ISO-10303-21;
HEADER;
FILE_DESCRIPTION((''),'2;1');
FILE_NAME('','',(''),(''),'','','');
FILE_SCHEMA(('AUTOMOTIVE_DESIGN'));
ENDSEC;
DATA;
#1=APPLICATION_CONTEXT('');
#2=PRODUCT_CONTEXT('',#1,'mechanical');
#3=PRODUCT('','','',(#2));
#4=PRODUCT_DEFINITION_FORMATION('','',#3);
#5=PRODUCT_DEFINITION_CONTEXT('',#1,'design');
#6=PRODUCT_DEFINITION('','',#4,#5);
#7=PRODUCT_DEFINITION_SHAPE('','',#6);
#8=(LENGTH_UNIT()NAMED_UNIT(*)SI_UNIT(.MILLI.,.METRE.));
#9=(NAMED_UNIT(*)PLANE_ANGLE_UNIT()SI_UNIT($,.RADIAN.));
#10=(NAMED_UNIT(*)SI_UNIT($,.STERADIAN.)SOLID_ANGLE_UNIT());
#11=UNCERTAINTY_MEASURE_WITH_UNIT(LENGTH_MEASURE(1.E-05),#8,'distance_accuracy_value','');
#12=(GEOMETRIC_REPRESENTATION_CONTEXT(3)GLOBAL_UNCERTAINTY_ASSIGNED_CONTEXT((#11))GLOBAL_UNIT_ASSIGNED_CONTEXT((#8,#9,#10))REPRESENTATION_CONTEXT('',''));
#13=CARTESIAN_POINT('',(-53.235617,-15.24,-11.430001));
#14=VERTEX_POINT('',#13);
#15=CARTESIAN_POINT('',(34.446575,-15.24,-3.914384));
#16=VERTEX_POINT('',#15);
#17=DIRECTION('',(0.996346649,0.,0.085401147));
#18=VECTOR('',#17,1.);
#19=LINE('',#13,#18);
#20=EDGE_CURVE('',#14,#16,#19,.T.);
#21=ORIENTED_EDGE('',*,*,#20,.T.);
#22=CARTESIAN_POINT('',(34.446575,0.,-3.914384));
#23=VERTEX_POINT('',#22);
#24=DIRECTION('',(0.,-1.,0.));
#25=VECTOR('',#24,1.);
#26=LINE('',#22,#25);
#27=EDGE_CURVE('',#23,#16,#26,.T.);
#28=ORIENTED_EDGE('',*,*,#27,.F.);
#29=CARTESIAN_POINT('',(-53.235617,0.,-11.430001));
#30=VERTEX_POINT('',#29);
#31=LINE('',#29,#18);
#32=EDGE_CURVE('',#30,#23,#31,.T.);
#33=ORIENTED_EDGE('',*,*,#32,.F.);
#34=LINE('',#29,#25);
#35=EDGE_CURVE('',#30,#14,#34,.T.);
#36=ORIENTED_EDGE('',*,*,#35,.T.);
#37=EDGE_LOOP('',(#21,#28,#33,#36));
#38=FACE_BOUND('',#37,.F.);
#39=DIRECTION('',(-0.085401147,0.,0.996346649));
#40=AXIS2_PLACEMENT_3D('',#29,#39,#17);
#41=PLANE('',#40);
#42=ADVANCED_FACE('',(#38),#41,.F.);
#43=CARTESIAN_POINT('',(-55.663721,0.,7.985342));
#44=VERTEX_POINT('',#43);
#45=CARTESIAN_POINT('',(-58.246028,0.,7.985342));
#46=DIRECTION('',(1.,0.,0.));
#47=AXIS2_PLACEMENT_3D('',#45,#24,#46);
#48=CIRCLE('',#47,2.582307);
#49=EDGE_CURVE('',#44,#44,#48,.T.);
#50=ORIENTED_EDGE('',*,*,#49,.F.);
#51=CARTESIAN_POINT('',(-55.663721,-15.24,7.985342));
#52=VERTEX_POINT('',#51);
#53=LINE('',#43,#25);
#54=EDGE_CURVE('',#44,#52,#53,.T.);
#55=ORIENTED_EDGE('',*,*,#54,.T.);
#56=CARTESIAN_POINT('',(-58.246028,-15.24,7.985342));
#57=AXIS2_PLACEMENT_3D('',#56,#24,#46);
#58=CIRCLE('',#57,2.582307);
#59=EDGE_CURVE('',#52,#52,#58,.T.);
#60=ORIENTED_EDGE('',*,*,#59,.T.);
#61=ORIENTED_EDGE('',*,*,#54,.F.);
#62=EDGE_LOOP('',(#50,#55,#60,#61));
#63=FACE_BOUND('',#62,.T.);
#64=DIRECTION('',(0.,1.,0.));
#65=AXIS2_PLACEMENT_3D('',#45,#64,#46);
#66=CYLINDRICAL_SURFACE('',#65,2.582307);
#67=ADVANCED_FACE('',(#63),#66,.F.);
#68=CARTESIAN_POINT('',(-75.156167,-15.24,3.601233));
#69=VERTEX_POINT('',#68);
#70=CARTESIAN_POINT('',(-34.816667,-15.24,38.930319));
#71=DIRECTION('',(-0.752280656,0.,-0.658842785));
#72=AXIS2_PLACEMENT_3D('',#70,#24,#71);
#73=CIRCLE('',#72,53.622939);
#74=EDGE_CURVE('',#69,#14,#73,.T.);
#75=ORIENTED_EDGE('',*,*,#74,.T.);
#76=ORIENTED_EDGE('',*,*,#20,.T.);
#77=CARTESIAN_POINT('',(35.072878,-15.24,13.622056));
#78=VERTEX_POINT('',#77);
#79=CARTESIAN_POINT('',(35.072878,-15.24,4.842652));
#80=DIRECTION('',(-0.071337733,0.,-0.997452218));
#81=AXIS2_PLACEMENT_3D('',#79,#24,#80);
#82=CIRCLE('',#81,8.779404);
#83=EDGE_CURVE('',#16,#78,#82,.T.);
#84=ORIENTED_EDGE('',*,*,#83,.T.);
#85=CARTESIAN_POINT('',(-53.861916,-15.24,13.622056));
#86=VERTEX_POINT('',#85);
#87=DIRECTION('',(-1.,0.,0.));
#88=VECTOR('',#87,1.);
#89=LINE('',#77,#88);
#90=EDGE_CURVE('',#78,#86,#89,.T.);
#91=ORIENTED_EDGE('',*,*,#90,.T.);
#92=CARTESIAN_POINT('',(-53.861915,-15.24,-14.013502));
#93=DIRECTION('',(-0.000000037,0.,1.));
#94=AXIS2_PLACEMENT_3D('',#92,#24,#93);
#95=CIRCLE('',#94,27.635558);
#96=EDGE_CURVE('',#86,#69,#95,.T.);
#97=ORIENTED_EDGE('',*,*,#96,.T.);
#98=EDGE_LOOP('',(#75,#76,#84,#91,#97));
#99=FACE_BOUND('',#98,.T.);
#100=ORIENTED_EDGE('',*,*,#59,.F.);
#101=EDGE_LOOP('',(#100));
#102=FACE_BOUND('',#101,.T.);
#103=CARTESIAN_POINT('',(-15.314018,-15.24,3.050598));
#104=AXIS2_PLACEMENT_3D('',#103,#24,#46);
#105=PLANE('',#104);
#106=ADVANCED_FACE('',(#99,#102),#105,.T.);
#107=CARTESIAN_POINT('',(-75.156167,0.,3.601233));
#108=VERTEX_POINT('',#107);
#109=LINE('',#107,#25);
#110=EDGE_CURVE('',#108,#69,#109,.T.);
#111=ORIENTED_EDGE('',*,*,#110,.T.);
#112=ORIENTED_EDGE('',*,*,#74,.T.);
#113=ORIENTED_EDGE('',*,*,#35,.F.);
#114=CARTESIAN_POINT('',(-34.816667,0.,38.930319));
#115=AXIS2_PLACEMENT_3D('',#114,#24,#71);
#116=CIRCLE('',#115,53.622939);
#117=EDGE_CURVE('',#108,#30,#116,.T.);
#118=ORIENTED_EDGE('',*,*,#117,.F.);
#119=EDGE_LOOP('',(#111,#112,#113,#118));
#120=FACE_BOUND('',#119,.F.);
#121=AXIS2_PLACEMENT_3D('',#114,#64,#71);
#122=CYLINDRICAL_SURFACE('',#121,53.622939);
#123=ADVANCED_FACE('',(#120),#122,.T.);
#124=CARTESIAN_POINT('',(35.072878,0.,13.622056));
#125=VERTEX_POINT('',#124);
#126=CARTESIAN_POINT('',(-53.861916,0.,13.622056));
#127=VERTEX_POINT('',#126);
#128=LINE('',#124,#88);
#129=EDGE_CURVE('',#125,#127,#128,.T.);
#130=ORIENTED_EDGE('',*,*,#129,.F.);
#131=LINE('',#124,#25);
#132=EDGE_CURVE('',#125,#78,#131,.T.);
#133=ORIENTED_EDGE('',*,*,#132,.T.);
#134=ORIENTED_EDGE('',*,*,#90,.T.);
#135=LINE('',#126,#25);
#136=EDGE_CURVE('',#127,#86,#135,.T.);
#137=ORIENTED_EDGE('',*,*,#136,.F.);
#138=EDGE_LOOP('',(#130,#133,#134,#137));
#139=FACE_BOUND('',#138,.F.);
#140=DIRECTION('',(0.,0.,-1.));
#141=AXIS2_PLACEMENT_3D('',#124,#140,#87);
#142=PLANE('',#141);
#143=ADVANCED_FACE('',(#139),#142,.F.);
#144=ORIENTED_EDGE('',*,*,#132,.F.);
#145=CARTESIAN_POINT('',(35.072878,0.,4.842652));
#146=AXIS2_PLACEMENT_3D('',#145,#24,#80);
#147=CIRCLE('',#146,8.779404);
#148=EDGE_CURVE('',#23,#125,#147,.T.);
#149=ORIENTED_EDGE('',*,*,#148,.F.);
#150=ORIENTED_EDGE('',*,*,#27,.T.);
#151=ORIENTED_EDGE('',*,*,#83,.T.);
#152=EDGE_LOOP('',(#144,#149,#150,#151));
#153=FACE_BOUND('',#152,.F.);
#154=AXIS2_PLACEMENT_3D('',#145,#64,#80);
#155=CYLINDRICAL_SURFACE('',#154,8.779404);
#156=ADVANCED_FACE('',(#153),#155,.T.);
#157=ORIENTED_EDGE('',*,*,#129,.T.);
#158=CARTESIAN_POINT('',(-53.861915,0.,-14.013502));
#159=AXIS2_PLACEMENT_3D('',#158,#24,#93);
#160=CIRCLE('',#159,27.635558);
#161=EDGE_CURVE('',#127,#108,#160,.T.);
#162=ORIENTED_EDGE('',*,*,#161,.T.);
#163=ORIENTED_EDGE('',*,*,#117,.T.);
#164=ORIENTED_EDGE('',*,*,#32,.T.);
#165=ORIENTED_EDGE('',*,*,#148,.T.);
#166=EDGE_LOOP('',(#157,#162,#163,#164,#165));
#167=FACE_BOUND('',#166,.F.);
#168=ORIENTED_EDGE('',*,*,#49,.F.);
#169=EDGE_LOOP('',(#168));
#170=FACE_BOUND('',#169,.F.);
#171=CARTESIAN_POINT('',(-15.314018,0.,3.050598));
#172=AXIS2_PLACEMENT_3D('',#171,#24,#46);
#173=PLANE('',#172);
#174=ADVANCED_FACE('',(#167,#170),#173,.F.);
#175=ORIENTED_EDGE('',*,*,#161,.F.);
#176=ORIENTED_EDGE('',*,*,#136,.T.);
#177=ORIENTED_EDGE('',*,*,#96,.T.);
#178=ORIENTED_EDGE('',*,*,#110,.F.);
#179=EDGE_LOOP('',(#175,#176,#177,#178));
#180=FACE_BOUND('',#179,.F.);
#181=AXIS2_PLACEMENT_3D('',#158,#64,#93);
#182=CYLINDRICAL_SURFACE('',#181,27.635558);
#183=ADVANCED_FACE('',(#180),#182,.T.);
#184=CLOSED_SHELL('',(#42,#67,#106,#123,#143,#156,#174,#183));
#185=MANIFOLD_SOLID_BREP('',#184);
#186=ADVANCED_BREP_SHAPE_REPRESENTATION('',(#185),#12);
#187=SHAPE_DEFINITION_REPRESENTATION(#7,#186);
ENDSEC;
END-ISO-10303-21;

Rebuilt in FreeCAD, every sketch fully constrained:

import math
import FreeCAD as App
import Part
import Sketcher

V = App.Vector
Q = App.Units.Quantity

doc = App.newDocument("Part")
body = doc.addObject("PartDesign::Body", "Body")

sketch1 = doc.addObject("Sketcher::SketchObject", "Sketch")
body.addObject(sketch1)
sketch1.AttachmentSupport = (doc.XZ_Plane, [""])
sketch1.MapMode = "FlatFace"
sketch1.addGeometry([
    Part.LineSegment(V(35.1, 13.6, 0), V(-53.9, 13.6, 0)),
    Part.ArcOfCircle(Part.Circle(V(-53.9, -14, 0), V(0, 0, 1), 27.6), math.radians(90), math.radians(140)),
    Part.ArcOfCircle(Part.Circle(V(-34.8, 38.9, 0), V(0, 0, 1), 53.6), math.radians(-139), math.radians(-110)),
    Part.LineSegment(V(-53.2, -11.4, 0), V(34.4, -3.9, 0)),
    Part.ArcOfCircle(Part.Circle(V(35.1, 4.8, 0), V(0, 0, 1), 8.8), math.radians(-94), math.radians(90)),
    Part.Circle(V(-58.2, 8, 0), V(0, 0, 1), 2.6),
], False)
sketch1.addConstraint([
    Sketcher.Constraint("Tangent", 0, 2, 1, 1),
    Sketcher.Constraint("Coincident", 1, 2, 2, 1),
    Sketcher.Constraint("Coincident", 2, 2, 3, 1),
    Sketcher.Constraint("Coincident", 3, 2, 4, 1),
    Sketcher.Constraint("Tangent", 4, 2, 0, 1),
    Sketcher.Constraint("Horizontal", 0),
    Sketcher.Constraint("DistanceY", 2, 2, -1, 1, Q("0.45 in")),
    Sketcher.Constraint("Radius", 2, 53.622939),
    Sketcher.Constraint("Diameter", 5, 5.164614),
    Sketcher.Constraint("Radius", 1, 27.635558),
    Sketcher.Constraint("Radius", 4, 8.779404),
    Sketcher.Constraint("Distance", 3, 88.0037),
    Sketcher.Constraint("DistanceY", 1, 3, -1, 1, 14.013502),
    Sketcher.Constraint("DistanceX", 1, 2, 2, 3, 40.3395),
    Sketcher.Constraint("DistanceX", 0, 2, 2, 2, 0.626299),
    Sketcher.Constraint("DistanceX", 0, 2, 0, 1, 88.934794),
    Sketcher.Constraint("DistanceX", 5, 3, -1, 1, 58.246028),
    Sketcher.Constraint("DistanceX", -1, 1, 4, 2, 35.072878),
    Sketcher.Constraint("DistanceY", 4, 3, 5, 3, 3.14269),
])
pad1 = doc.addObject("PartDesign::Pad", "Pad")
body.addObject(pad1)
pad1.Profile = sketch1
pad1.Length = Q("0.6 in")

doc.recompute()
